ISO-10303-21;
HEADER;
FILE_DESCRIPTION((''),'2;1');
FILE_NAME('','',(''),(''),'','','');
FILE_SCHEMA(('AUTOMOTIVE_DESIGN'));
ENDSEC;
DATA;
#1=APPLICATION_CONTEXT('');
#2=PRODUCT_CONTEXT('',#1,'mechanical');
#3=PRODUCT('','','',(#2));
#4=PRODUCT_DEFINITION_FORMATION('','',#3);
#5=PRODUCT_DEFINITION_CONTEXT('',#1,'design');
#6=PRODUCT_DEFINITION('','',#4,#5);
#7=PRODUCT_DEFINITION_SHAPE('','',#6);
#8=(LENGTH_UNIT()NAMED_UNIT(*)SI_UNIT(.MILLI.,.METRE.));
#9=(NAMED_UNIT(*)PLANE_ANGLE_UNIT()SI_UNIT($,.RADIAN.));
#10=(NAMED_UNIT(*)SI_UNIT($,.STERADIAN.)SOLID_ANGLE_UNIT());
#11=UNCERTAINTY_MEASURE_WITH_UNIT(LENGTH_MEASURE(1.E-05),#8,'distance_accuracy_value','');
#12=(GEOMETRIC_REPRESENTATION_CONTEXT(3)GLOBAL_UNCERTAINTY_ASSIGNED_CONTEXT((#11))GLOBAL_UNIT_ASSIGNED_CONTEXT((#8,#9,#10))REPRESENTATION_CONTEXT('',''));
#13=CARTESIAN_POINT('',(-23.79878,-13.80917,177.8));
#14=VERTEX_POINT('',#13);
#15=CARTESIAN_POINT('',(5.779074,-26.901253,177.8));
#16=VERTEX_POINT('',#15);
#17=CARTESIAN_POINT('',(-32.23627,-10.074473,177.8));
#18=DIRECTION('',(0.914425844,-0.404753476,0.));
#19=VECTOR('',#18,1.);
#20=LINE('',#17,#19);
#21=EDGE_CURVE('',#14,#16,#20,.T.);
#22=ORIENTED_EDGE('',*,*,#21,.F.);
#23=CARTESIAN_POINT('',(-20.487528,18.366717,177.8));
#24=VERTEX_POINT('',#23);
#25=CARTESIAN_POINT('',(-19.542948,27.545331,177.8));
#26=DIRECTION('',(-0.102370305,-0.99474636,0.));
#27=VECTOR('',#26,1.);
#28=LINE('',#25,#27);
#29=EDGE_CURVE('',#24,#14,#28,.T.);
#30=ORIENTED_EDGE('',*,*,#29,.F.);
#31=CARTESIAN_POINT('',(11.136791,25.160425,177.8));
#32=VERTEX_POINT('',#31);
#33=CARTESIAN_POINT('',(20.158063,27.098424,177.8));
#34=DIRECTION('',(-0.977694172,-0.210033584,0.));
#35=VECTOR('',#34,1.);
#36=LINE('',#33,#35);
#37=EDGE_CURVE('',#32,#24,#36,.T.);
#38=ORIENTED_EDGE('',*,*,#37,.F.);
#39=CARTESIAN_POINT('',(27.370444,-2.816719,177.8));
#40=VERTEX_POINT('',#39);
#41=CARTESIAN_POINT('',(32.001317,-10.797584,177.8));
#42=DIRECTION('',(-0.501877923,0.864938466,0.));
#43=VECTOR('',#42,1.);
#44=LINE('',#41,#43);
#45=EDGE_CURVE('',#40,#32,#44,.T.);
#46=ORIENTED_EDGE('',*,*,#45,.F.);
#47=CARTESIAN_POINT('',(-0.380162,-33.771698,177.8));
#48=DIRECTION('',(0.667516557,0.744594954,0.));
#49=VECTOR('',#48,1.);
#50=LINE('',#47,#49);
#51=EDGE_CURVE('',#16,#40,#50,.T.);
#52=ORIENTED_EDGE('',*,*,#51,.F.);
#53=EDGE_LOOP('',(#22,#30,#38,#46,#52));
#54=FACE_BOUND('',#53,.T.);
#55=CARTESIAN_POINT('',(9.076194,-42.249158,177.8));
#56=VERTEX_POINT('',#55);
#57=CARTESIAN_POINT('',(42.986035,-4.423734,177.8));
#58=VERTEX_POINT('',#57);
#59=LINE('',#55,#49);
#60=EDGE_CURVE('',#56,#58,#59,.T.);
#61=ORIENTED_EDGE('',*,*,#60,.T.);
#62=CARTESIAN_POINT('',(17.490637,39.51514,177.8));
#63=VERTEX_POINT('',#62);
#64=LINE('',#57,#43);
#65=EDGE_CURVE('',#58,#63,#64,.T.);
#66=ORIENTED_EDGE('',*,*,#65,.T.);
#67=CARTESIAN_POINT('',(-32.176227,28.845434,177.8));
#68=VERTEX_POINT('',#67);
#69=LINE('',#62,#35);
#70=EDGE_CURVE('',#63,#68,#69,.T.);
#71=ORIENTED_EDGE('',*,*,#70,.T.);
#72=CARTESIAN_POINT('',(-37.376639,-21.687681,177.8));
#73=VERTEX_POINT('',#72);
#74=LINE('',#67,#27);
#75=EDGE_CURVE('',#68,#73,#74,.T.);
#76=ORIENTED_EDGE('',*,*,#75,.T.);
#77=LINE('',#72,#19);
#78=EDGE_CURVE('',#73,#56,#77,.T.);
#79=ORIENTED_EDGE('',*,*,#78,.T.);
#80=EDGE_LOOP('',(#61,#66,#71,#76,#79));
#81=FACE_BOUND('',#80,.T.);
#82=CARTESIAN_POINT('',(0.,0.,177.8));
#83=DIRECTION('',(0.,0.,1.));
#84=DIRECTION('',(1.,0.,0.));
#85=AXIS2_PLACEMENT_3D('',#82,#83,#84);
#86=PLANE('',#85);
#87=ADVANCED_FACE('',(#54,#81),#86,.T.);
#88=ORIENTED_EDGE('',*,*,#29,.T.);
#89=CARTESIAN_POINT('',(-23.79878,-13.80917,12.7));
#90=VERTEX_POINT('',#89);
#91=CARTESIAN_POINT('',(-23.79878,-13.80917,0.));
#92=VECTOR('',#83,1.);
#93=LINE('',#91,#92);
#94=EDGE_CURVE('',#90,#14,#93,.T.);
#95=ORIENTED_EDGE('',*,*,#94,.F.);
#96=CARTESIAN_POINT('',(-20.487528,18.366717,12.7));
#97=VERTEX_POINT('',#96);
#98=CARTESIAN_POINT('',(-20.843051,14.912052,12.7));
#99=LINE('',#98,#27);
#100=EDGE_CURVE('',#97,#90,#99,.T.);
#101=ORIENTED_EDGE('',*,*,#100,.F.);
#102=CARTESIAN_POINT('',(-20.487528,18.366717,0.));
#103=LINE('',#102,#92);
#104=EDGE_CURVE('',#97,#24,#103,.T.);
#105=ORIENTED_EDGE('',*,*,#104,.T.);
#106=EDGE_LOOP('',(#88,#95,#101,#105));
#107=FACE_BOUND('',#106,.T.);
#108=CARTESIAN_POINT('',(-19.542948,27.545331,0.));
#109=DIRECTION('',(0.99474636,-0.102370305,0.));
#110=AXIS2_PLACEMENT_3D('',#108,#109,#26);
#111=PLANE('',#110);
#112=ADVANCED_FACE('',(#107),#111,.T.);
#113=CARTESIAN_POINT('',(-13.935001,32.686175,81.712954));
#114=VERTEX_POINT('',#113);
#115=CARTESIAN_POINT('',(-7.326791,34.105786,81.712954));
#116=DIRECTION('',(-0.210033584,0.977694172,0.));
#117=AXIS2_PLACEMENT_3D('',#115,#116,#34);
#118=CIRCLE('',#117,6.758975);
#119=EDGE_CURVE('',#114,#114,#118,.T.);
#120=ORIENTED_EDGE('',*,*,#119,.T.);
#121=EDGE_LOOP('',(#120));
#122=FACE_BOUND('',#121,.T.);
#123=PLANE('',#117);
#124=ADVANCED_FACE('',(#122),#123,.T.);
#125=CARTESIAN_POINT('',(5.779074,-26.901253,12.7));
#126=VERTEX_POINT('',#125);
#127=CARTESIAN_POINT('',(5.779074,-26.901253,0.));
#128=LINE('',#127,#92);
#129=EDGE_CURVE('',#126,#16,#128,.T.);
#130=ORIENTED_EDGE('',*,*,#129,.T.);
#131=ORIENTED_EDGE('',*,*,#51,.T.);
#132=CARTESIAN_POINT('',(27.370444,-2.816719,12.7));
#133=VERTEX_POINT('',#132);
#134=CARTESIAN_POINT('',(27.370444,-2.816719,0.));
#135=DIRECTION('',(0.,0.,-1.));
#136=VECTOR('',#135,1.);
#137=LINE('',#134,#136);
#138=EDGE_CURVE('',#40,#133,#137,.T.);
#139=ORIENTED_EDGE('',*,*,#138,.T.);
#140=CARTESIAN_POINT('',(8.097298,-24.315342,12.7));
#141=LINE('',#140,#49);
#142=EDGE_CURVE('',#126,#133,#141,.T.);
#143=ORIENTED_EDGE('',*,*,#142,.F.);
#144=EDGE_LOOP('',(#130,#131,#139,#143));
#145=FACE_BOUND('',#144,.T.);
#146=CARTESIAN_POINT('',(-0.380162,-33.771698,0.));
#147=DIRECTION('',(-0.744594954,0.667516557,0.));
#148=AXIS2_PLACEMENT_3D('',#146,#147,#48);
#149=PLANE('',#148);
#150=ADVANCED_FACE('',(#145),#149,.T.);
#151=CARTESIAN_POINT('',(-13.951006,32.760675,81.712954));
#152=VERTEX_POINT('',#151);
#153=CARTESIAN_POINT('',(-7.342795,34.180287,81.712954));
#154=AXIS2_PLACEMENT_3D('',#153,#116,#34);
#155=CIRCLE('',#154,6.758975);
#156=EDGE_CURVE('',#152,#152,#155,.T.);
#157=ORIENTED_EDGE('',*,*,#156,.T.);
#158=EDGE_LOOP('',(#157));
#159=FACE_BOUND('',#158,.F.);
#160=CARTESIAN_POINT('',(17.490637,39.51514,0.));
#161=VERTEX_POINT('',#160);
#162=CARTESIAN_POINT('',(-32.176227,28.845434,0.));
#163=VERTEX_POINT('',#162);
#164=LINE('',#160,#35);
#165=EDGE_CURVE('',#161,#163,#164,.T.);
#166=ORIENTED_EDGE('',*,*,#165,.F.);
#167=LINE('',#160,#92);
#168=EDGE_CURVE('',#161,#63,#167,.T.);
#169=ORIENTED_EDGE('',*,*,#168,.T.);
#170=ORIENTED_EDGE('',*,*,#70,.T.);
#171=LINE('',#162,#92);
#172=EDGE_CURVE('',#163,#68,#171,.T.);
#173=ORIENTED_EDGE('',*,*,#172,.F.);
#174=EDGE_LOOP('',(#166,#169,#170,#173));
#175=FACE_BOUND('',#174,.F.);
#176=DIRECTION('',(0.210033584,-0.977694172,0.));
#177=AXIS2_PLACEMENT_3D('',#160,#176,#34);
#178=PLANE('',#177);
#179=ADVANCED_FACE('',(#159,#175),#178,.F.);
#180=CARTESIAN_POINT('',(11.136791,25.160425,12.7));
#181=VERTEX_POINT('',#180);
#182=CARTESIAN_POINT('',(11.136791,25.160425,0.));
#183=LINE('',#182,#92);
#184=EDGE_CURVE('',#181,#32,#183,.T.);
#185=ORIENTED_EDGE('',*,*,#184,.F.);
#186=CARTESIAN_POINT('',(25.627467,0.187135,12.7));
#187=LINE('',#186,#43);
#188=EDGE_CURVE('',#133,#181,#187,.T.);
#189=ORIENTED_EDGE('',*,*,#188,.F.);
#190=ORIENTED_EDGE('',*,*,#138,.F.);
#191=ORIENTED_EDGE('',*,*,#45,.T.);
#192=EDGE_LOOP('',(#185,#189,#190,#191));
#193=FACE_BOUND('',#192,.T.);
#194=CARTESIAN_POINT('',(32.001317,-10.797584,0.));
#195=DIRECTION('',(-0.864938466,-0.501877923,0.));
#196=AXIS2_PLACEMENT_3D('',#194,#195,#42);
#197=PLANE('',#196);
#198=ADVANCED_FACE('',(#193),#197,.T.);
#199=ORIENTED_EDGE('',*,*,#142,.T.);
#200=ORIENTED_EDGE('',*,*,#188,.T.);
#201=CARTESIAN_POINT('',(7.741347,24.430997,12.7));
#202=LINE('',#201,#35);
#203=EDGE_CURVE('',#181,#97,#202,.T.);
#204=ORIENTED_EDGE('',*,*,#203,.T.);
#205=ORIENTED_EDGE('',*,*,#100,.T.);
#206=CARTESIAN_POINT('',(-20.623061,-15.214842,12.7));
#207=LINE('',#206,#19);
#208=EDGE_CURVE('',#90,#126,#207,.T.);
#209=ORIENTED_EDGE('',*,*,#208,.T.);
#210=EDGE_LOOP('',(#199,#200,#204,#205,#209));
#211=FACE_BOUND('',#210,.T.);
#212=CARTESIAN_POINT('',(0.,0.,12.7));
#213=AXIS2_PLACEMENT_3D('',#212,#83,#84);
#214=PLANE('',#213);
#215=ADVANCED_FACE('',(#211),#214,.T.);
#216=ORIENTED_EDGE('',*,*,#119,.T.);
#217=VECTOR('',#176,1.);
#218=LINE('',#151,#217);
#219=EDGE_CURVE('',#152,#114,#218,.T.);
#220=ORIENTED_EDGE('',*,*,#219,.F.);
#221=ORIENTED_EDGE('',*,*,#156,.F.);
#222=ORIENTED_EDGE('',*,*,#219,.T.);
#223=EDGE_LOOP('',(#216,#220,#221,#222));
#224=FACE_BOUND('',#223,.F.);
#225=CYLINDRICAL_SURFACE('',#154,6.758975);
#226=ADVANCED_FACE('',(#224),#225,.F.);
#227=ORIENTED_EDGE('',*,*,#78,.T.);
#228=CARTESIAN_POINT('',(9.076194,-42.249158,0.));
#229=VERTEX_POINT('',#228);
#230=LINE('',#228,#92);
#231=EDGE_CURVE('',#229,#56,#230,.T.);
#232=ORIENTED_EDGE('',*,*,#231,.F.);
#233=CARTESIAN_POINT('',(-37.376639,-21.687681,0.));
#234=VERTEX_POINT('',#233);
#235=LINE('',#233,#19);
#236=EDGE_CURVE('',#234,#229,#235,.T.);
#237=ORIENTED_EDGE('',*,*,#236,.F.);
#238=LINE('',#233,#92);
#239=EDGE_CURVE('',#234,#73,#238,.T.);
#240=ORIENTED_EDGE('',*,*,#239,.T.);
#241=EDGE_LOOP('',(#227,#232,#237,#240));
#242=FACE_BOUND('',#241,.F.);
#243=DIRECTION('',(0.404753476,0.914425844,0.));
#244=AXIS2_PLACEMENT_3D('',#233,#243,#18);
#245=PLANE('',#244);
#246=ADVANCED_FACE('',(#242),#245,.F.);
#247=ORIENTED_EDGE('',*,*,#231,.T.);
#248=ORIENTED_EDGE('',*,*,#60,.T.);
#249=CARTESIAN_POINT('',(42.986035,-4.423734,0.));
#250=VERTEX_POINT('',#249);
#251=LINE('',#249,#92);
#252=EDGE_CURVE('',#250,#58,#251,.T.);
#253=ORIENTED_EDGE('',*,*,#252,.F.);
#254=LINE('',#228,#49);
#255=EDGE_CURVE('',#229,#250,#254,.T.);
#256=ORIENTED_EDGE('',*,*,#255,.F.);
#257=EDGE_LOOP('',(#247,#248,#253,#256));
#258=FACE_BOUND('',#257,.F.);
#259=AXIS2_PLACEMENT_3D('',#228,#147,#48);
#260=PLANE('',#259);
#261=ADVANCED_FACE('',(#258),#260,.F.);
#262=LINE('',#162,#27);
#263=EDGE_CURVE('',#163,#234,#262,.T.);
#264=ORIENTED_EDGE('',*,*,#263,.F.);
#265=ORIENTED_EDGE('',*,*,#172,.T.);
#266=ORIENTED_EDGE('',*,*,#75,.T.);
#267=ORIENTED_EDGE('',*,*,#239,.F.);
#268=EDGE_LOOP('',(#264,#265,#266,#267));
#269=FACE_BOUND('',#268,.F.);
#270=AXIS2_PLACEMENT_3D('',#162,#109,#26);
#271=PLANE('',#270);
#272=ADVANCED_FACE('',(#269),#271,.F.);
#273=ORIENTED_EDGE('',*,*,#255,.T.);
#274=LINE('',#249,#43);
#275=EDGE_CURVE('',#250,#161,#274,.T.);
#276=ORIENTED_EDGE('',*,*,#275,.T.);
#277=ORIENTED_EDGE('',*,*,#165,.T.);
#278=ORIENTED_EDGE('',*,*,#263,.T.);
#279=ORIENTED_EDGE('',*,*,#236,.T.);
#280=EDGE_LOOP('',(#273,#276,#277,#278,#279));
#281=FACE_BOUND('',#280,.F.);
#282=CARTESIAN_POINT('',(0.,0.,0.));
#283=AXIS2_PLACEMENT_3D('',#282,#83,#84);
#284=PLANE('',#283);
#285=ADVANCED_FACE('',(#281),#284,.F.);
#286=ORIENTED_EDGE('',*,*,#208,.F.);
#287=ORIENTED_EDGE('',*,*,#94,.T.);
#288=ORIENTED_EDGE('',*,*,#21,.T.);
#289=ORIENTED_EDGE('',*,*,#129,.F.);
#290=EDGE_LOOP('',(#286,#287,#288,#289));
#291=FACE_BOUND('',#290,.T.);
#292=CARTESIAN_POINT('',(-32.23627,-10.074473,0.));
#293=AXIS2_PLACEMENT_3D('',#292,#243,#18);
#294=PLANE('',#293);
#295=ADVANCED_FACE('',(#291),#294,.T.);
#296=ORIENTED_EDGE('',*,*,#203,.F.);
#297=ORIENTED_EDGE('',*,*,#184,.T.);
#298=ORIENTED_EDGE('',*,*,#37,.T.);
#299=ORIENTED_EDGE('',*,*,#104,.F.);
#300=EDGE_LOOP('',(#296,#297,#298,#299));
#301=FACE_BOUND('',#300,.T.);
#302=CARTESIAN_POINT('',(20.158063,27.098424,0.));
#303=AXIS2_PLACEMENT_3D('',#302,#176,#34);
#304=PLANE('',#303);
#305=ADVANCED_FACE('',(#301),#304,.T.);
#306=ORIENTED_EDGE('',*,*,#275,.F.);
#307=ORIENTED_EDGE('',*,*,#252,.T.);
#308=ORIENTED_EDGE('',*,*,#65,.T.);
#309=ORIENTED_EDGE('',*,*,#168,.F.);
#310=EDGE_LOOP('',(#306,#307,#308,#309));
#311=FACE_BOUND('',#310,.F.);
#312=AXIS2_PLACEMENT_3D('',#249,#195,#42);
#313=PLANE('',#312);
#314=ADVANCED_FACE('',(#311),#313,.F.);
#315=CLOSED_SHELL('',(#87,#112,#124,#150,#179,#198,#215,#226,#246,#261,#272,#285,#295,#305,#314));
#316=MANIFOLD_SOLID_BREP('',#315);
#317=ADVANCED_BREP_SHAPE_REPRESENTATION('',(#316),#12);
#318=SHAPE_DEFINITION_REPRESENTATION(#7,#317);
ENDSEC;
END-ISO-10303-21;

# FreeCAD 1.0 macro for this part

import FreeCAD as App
import Part
import Sketcher
Q = App.Units.Quantity


def faces_at(feature, points):
    """Names of the faces that lie closest to the given points."""
    faces = feature.Shape.Faces
    near = lambda p: min(range(len(faces)), key=lambda i: faces[i].distToShape(Part.Vertex(*p))[0])
    return sorted({f"Face{near(p) + 1}" for p in points})

doc = App.newDocument("Part")
body = doc.addObject("PartDesign::Body", "Body")

# Sketch on XY plane
sketch1 = body.newObject("Sketcher::SketchObject", "Sketch")
sketch1.AttachmentSupport = (doc.getObject("XY_Plane"), [""])
sketch1.MapMode = "FlatFace"
sketch1.addGeometry(Part.LineSegment(App.Vector(43, -4, 0), App.Vector(17, 40, 0)), False)
sketch1.addGeometry(Part.LineSegment(App.Vector(17, 40, 0), App.Vector(-32, 29, 0)), False)
sketch1.addGeometry(Part.LineSegment(App.Vector(-32, 29, 0), App.Vector(-37, -22, 0)), False)
sketch1.addGeometry(Part.LineSegment(App.Vector(-37, -22, 0), App.Vector(9, -42, 0)), False)
sketch1.addGeometry(Part.LineSegment(App.Vector(9, -42, 0), App.Vector(43, -4, 0)), False)
sketch1.addConstraint(Sketcher.Constraint("Coincident", 0, 2, 1, 1))
sketch1.addConstraint(Sketcher.Constraint("Coincident", 1, 2, 2, 1))
sketch1.addConstraint(Sketcher.Constraint("Coincident", 2, 2, 3, 1))
sketch1.addConstraint(Sketcher.Constraint("Coincident", 3, 2, 4, 1))
sketch1.addConstraint(Sketcher.Constraint("Coincident", 4, 2, 0, 1))
sketch1.addConstraint(Sketcher.Constraint("Equal", 0, 1))
sketch1.addConstraint(Sketcher.Constraint("Equal", 1, 2))
sketch1.addConstraint(Sketcher.Constraint("Equal", 2, 3))
sketch1.addConstraint(Sketcher.Constraint("Equal", 3, 4))
sketch1.addConstraint(Sketcher.Constraint("Distance", 0, Q("2 in")))
sketch1.addConstraint(Sketcher.Constraint("DistanceX", 0, 2, 4, 2, 25.495399))
sketch1.addConstraint(Sketcher.Constraint("DistanceY", -1, 1, 0, 2, 39.51514))
sketch1.addConstraint(Sketcher.Constraint("DistanceX", 2, 2, -1, 1, 37.376639))
sketch1.addConstraint(Sketcher.Constraint("DistanceY", 2, 2, -1, 1, 21.687681))
sketch1.addConstraint(Sketcher.Constraint("DistanceX", 2, 2, 1, 2, 5.200412))
pad1 = body.newObject("PartDesign::Pad", "Pad")
pad1.Profile = sketch1
pad1.Length = Q("7 in")
doc.recompute()

thickness = body.newObject("PartDesign::Thickness", "Thickness")
thickness.Base = (pad1, faces_at(pad1, [(2.805, -1.367, 177.8)]))
thickness.Value = Q("0.5 in")
thickness.Reversed = True
thickness.Join = "Arc"

# Sketch on an angled plane
sketch2 = body.newObject("Sketcher::SketchObject", "Sketch001")
sketch2.Placement = App.Placement(App.Vector(-7.342795, 34.180287, 0), App.Rotation(App.Vector(-0.977694172, -0.210033584, 0), App.Vector(0, 0, 1), App.Vector(-0.210033584, 0.977694172, 0), "ZXY"))
sketch2.addGeometry(Part.Circle(App.Vector(0, 82, 0), App.Vector(0, 0, 1), 7), False)
sketch2.addConstraint(Sketcher.Constraint("PointOnObject", 0, 3, -2))
sketch2.addConstraint(Sketcher.Constraint("Diameter", 0, 13.51795))
sketch2.addConstraint(Sketcher.Constraint("DistanceY", -1, 1, 0, 3, 81.712954))
pocket1 = body.newObject("PartDesign::Pocket", "Pocket")
pocket1.Profile = sketch2
pocket1.Length = Q("0.003 in")

doc.recompute()
